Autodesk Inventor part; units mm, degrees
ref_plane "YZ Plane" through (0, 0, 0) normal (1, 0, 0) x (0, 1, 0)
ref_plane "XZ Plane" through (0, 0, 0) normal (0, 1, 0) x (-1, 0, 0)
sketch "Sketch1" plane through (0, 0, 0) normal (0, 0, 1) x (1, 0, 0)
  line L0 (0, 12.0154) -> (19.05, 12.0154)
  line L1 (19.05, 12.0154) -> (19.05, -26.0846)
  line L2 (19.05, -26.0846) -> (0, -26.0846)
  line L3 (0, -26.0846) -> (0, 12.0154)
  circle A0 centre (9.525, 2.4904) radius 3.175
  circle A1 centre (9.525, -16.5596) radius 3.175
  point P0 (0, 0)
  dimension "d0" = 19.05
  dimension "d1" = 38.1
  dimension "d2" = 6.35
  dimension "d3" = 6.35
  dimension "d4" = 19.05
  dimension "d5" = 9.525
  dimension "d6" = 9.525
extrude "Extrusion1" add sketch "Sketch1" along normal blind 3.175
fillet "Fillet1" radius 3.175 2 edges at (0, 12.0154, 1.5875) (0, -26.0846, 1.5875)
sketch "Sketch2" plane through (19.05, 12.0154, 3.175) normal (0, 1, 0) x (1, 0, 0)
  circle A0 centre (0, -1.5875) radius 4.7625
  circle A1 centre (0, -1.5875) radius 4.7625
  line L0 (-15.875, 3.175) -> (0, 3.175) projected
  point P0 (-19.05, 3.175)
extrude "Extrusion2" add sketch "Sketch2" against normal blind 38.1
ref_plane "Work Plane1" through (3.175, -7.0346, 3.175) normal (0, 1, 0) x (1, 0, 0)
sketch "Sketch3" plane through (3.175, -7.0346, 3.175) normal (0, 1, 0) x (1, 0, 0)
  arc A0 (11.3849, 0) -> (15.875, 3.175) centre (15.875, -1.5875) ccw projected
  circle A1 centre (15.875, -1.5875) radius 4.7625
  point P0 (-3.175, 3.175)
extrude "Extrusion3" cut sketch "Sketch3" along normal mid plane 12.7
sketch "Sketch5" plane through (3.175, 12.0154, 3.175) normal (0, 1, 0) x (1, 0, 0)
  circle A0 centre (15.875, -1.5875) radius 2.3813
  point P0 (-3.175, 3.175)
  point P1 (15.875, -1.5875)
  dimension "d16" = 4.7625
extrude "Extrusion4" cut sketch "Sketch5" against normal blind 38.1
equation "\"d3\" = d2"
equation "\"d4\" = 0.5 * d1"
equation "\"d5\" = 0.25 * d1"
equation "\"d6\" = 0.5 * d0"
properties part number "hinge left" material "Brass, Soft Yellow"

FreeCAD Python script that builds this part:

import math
import FreeCAD as App
import Part
import Sketcher

V = App.Vector
Q = App.Units.Quantity


def edges_at(feature, points):
    """Names of the edges that pass closest to the given points."""
    edges = feature.Shape.Edges
    near = lambda p: min(range(len(edges)), key=lambda i: edges[i].distToShape(Part.Vertex(*p))[0])
    return sorted({f"Edge{near(p) + 1}" for p in points})


def add_polygon(sketch, points):
    """Adds a closed chain of lines whose ends are joined by coincident constraints."""
    first, n = sketch.GeometryCount, len(points)
    for a, b in zip(points, points[1:] + points[:1]):
        sketch.addGeometry(Part.LineSegment(App.Vector(*a, 0), App.Vector(*b, 0)), False)
    for i in range(n):
        sketch.addConstraint(Sketcher.Constraint("Coincident", first + i, 2, first + (i + 1) % n, 1))

doc = App.newDocument("Part")
body = doc.addObject("PartDesign::Body", "Body")

# Sketch on XY plane
sketch1 = doc.addObject("Sketcher::SketchObject", "Sketch")
body.addObject(sketch1)
sketch1.AttachmentSupport = (doc.XY_Plane, [""])
sketch1.MapMode = "FlatFace"
add_polygon(sketch1, [(19.1, 12), (0, 12), (0, -26.1), (19.1, -26.1)])  # lines 0-3
sketch1.addGeometry(Part.Circle(V(9.5, -16.6, 0), V(0, 0, 1), 3.2), False)  # 4
sketch1.addGeometry(Part.Circle(V(9.5, 2.5, 0), V(0, 0, 1), 3.2), False)  # 5
sketch1.addConstraint([
    Sketcher.Constraint("Horizontal", 0),
    Sketcher.Constraint("Vertical", 1),
    Sketcher.Constraint("Horizontal", 2),
    Sketcher.Constraint("Vertical", 3),
    Sketcher.Constraint("Equal", 4, 5),
    Sketcher.Constraint("PointOnObject", 0, 2, -2),
    Sketcher.Constraint("Vertical", 4, 3, 5, 3),
    Sketcher.Constraint("Diameter", 4, Q("0.25 in")),
    Sketcher.Constraint("DistanceY", 1, 2, 1, 1, Q("1.5 in")),
    Sketcher.Constraint("DistanceX", 0, 2, 0, 1, Q("0.75 in")),
    Sketcher.Constraint("DistanceY", 4, 3, 5, 3, Q("0.75 in")),
    Sketcher.Constraint("DistanceX", -1, 1, 4, 3, Q("0.375 in")),
    Sketcher.Constraint("DistanceY", 5, 3, 0, 2, Q("0.375 in")),
    Sketcher.Constraint("DistanceY", 4, 3, -1, 1, Q("16.5596 mm")),
])
pad1 = doc.addObject("PartDesign::Pad", "Pad")
body.addObject(pad1)
pad1.Profile = sketch1
pad1.Length = Q("0.125 in")
doc.recompute()

fillet = doc.addObject("PartDesign::Fillet", "Fillet")
body.addObject(fillet)
fillet.Base = (pad1, edges_at(pad1, [(0, 12.015, 1.587), (0, -26.085, 1.587)]))
fillet.Radius = Q("0.125 in")

# Sketch on XZ plane
sketch2 = doc.addObject("Sketcher::SketchObject", "Sketch001")
body.addObject(sketch2)
sketch2.AttachmentSupport = (doc.XZ_Plane, [""])
sketch2.MapMode = "FlatFace"
sketch2.AttachmentOffset = App.Placement(V(0, 0, -12.0154), App.Rotation())
sketch2.addGeometry(Part.Circle(V(19.1, 4.8, 0), V(0, 0, 1), 4.8), False)
sketch2.addConstraint([
    Sketcher.Constraint("Diameter", 0, Q("0.375 in")),
    Sketcher.Constraint("DistanceX", -1, 1, 0, 3, Q("0.75 in")),
    Sketcher.Constraint("DistanceY", -1, 1, 0, 3, Q("0.1875 in")),
])
pad2 = doc.addObject("PartDesign::Pad", "Pad001")
body.addObject(pad2)
pad2.Profile = sketch2
pad2.Length = Q("1.5 in")

# Sketch on XZ plane
sketch3 = doc.addObject("Sketcher::SketchObject", "Sketch002")
body.addObject(sketch3)
sketch3.AttachmentSupport = (doc.XZ_Plane, [""])
sketch3.MapMode = "FlatFace"
sketch3.AttachmentOffset = App.Placement(V(0, 0, 7.0346), App.Rotation())
sketch3.addGeometry([
    Part.ArcOfCircle(Part.Circle(V(19.1, 4.8, 0), V(0, 0, 1), 4.8), math.radians(-161), math.radians(-90)),
    Part.ArcOfCircle(Part.Circle(V(19.1, 4.8, 0), V(0, 0, 1), 4.8), math.radians(-90), math.radians(199)),
], False)
sketch3.addConstraint([
    Sketcher.Constraint("Tangent", 0, 1, 1, 2),
    Sketcher.Constraint("Coincident", 1, 1, 0, 2),
    Sketcher.Constraint("PointOnObject", 1, 1, -1),
    Sketcher.Constraint("Vertical", 0, 3, 1, 1),
    Sketcher.Constraint("Radius", 0, Q("0.1875 in")),
    Sketcher.Constraint("DistanceX", -1, 1, 0, 3, Q("0.75 in")),
    Sketcher.Constraint("DistanceY", -1, 1, 0, 1, Q("0.125 in")),
])
pocket1 = doc.addObject("PartDesign::Pocket", "Pocket")
body.addObject(pocket1)
pocket1.Profile = sketch3
pocket1.Length = Q("0.5 in")
pocket1.Midplane = True

# Sketch on XZ plane
sketch4 = doc.addObject("Sketcher::SketchObject", "Sketch003")
body.addObject(sketch4)
sketch4.AttachmentSupport = (doc.XZ_Plane, [""])
sketch4.MapMode = "FlatFace"
sketch4.AttachmentOffset = App.Placement(V(0, 0, -12.0154), App.Rotation())
sketch4.addGeometry(Part.Circle(V(19.1, 4.8, 0), V(0, 0, 1), 2.4), False)
sketch4.addConstraint([
    Sketcher.Constraint("Diameter", 0, Q("0.1875 in")),
    Sketcher.Constraint("DistanceY", -1, 1, 0, 3, Q("0.1875 in")),
    Sketcher.Constraint("DistanceX", -1, 1, 0, 3, Q("0.75 in")),
])
pocket2 = doc.addObject("PartDesign::Pocket", "Pocket001")
body.addObject(pocket2)
pocket2.Profile = sketch4
pocket2.Length = Q("1.5 in")
pocket2.Reversed = True

doc.recompute()
